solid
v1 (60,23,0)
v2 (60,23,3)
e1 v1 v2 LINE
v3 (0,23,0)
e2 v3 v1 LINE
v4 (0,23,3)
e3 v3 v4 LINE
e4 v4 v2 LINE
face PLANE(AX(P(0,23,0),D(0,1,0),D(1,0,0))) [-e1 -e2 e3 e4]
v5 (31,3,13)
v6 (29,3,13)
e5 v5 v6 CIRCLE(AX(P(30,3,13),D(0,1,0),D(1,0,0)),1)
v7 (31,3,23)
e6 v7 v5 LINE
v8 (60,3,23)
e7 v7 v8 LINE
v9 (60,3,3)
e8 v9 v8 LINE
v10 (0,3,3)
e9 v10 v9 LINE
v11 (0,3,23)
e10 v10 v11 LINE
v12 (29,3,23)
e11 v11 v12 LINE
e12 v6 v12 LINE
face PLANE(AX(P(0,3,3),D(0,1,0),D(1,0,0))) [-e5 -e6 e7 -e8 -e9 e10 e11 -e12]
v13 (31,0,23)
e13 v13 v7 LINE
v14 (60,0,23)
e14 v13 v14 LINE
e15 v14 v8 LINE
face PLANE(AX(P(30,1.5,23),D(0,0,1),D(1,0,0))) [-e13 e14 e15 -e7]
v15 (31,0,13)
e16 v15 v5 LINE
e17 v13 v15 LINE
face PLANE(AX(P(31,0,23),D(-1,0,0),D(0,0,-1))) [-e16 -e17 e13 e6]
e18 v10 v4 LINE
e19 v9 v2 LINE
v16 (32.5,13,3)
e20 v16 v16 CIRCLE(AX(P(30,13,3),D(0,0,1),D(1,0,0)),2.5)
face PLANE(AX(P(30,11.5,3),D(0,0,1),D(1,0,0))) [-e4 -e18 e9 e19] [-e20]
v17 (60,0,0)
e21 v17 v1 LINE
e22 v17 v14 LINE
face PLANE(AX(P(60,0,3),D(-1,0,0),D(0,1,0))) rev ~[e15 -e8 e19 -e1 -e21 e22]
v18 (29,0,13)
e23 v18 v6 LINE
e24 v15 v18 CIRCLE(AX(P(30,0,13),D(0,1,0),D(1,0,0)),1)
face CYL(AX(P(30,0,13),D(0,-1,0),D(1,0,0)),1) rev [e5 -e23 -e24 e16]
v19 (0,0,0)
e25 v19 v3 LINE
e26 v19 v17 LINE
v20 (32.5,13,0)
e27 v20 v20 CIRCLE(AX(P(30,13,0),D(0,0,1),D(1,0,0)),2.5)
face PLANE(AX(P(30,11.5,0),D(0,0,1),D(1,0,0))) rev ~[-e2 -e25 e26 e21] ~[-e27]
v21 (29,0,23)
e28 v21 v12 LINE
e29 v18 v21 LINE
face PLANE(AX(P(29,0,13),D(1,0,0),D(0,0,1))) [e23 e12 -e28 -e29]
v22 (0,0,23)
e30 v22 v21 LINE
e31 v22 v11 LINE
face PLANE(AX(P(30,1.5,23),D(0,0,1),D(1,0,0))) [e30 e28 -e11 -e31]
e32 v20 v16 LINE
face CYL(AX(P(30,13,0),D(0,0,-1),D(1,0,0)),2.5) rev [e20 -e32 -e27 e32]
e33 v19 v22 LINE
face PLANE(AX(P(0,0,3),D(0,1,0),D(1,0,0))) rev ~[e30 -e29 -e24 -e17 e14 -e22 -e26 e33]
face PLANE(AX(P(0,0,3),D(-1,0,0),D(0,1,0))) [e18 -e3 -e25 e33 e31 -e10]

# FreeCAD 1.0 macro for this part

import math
import FreeCAD as App
import Part
import Sketcher
Q = App.Units.Quantity


def add_polygon(sketch, points):
    """Adds a closed chain of lines whose ends are joined by coincident constraints."""
    first, n = sketch.GeometryCount, len(points)
    for a, b in zip(points, points[1:] + points[:1]):
        sketch.addGeometry(Part.LineSegment(App.Vector(*a, 0), App.Vector(*b, 0)), False)
    for i in range(n):
        sketch.addConstraint(Sketcher.Constraint("Coincident", first + i, 2, first + (i + 1) % n, 1))

doc = App.newDocument("Part")
body = doc.addObject("PartDesign::Body", "Body")

sketch1 = body.newObject("Sketcher::SketchObject", "Sketch")
sketch1.AttachmentSupport = (doc.getObject("XZ_Plane"), [""])
sketch1.MapMode = "FlatFace"
sketch1.addGeometry([
    Part.LineSegment(App.Vector(29, 23, 0), App.Vector(31, 23, 0)),
    Part.LineSegment(App.Vector(31, 23, 0), App.Vector(31, 13, 0)),
    Part.ArcOfCircle(Part.Circle(App.Vector(30, 13, 0), App.Vector(0, 0, 1), 1), math.radians(180), math.radians(360)),
    Part.LineSegment(App.Vector(29, 13, 0), App.Vector(29, 23, 0)),
], False)
sketch1.addConstraint([
    Sketcher.Constraint("Coincident", 0, 2, 1, 1),
    Sketcher.Constraint("Tangent", 1, 2, 2, 2),
    Sketcher.Constraint("Tangent", 2, 1, 3, 1),
    Sketcher.Constraint("Coincident", 3, 2, 0, 1),
    Sketcher.Constraint("Horizontal", 0),
    Sketcher.Constraint("Vertical", 1),
    Sketcher.Constraint("Vertical", 3),
    Sketcher.Constraint("Radius", 2, Q("1 mm")),
    Sketcher.Constraint("DistanceY", 1, 2, 1, 1, Q("10 mm")),
    Sketcher.Constraint("DistanceX", -1, 1, 2, 3, Q("30 mm")),
    Sketcher.Constraint("DistanceY", -1, 1, 2, 3, Q("13 mm")),
])
pad1 = body.newObject("PartDesign::Pad", "Pad")
pad1.Profile = sketch1
pad1.Length = 3
pad1.Reversed = True
body2 = doc.addObject("PartDesign::Body", "Body001")

sketch2 = body2.newObject("Sketcher::SketchObject", "Sketch001")
sketch2.AttachmentSupport = (doc.getObject("XY_Plane001"), [""])
sketch2.MapMode = "FlatFace"
sketch2.AttachmentOffset = App.Placement(App.Vector(0, 0, 3), App.Rotation())
add_polygon(sketch2, [(0, 3), (0, 0), (60, 0), (60, 3)])
sketch2.addConstraint([
    Sketcher.Constraint("Vertical", 0),
    Sketcher.Constraint("Horizontal", 1),
    Sketcher.Constraint("Vertical", 2),
    Sketcher.Constraint("Horizontal", 3),
    Sketcher.Constraint("Coincident", 0, 2, -1, 1),
    Sketcher.Constraint("DistanceX", 1, 1, 1, 2, Q("60 mm")),
    Sketcher.Constraint("DistanceY", 0, 2, 0, 1, Q("3 mm")),
])
pad2 = body2.newObject("PartDesign::Pad", "Pad001")
pad2.Profile = sketch2
pad2.Length = 20
doc.recompute()

boolean = body2.newObject("PartDesign::Boolean", "Boolean")
boolean.Type = "Cut"
boolean.addObjects([body])
body3 = doc.addObject("PartDesign::Body", "Body002")

sketch3 = body3.newObject("Sketcher::SketchObject", "Sketch002")
sketch3.AttachmentSupport = (doc.getObject("XY_Plane002"), [""])
sketch3.MapMode = "FlatFace"
add_polygon(sketch3, [(0, 23), (0, 0), (60, 0), (60, 23)])
sketch3.addGeometry(Part.Circle(App.Vector(30, 13, 0), App.Vector(0, 0, 1), 2.5), False)
sketch3.addConstraint([
    Sketcher.Constraint("Vertical", 0),
    Sketcher.Constraint("Horizontal", 1),
    Sketcher.Constraint("Vertical", 2),
    Sketcher.Constraint("Horizontal", 3),
    Sketcher.Constraint("Coincident", 0, 2, -1, 1),
    Sketcher.Constraint("Diameter", 4, Q("5 mm")),
    Sketcher.Constraint("DistanceX", 1, 1, 1, 2, Q("60 mm")),
    Sketcher.Constraint("DistanceY", 0, 2, 0, 1, Q("23 mm")),
    Sketcher.Constraint("DistanceX", -1, 1, 4, 3, Q("30 mm")),
    Sketcher.Constraint("DistanceY", -1, 1, 4, 3, Q("13 mm")),
])
pad3 = body3.newObject("PartDesign::Pad", "Pad002")
pad3.Profile = sketch3
pad3.Length = 3
doc.recompute()

boolean2 = body3.newObject("PartDesign::Boolean", "Boolean001")
boolean2.Type = "Fuse"
boolean2.addObjects([body2])

doc.recompute()
